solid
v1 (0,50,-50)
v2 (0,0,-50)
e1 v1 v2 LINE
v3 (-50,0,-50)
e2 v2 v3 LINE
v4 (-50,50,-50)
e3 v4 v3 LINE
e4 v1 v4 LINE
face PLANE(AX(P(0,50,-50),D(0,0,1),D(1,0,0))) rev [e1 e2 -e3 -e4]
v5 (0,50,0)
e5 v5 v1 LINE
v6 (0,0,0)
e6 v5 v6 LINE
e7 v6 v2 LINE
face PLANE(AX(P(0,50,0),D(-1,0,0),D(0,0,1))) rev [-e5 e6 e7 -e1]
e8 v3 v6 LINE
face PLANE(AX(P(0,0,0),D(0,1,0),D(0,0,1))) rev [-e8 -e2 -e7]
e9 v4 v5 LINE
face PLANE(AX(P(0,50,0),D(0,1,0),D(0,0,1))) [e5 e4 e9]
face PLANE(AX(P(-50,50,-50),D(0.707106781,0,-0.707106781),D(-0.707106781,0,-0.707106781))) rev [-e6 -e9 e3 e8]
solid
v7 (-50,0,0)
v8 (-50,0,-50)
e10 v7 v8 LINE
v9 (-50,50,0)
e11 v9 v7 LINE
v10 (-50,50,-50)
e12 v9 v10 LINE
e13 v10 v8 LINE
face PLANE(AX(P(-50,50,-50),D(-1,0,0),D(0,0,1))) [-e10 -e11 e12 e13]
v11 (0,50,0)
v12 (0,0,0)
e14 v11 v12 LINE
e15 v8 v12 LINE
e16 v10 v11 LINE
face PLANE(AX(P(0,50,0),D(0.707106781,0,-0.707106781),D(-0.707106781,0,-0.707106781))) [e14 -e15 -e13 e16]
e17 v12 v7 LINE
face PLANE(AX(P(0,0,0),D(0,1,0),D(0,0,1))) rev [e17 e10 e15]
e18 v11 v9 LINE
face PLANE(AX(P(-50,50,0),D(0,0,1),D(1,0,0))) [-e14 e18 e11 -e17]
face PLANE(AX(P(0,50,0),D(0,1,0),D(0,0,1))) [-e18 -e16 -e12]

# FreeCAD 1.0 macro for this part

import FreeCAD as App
import Part
import Sketcher
Q = App.Units.Quantity

doc = App.newDocument("Part")
body = doc.addObject("PartDesign::Body", "Body")

# Sketch on XZ plane
sketch1 = body.newObject("Sketcher::SketchObject", "Sketch")
sketch1.AttachmentSupport = (doc.getObject("XZ_Plane"), [""])
sketch1.MapMode = "FlatFace"
sketch1.addGeometry([
    Part.LineSegment(App.Vector(0, 0, 0), App.Vector(0, -50, 0)),
    Part.LineSegment(App.Vector(0, -50, 0), App.Vector(-50, -50, 0)),
    Part.LineSegment(App.Vector(-50, -50, 0), App.Vector(0, 0, 0)),
], False)
sketch1.addConstraint([
    Sketcher.Constraint("Coincident", 0, 2, 1, 1),
    Sketcher.Constraint("Coincident", 1, 2, 2, 1),
    Sketcher.Constraint("Coincident", 2, 2, 0, 1),
    Sketcher.Constraint("Vertical", 0),
    Sketcher.Constraint("Horizontal", 1),
    Sketcher.Constraint("Coincident", 2, 2, -1, 1),
    Sketcher.Constraint("Equal", 1, 0),
    Sketcher.Constraint("DistanceX", 1, 2, 1, 1, Q("50 mm")),
])
pad1 = body.newObject("PartDesign::Pad", "Pad")
pad1.Profile = sketch1
pad1.Length = 50
pad1.Reversed = True
body2 = doc.addObject("PartDesign::Body", "Body001")

# Sketch on XZ plane
sketch2 = body2.newObject("Sketcher::SketchObject", "Sketch001")
sketch2.AttachmentSupport = (doc.getObject("XZ_Plane001"), [""])
sketch2.MapMode = "FlatFace"
sketch2.addGeometry([
    Part.LineSegment(App.Vector(-50, 0, 0), App.Vector(-50, -50, 0)),
    Part.LineSegment(App.Vector(-50, -50, 0), App.Vector(0, 0, 0)),
    Part.LineSegment(App.Vector(0, 0, 0), App.Vector(-50, 0, 0)),
], False)
sketch2.addConstraint([
    Sketcher.Constraint("Coincident", 0, 2, 1, 1),
    Sketcher.Constraint("Coincident", 1, 2, 2, 1),
    Sketcher.Constraint("Coincident", 2, 2, 0, 1),
    Sketcher.Constraint("Vertical", 0),
    Sketcher.Constraint("Horizontal", 2),
    Sketcher.Constraint("Coincident", 1, 2, -1, 1),
    Sketcher.Constraint("Equal", 2, 0),
    Sketcher.Constraint("DistanceX", 2, 2, 2, 1, Q("50 mm")),
])
pad2 = body2.newObject("PartDesign::Pad", "Pad001")
pad2.Profile = sketch2
pad2.Length = 50
pad2.Reversed = True

doc.recompute()
